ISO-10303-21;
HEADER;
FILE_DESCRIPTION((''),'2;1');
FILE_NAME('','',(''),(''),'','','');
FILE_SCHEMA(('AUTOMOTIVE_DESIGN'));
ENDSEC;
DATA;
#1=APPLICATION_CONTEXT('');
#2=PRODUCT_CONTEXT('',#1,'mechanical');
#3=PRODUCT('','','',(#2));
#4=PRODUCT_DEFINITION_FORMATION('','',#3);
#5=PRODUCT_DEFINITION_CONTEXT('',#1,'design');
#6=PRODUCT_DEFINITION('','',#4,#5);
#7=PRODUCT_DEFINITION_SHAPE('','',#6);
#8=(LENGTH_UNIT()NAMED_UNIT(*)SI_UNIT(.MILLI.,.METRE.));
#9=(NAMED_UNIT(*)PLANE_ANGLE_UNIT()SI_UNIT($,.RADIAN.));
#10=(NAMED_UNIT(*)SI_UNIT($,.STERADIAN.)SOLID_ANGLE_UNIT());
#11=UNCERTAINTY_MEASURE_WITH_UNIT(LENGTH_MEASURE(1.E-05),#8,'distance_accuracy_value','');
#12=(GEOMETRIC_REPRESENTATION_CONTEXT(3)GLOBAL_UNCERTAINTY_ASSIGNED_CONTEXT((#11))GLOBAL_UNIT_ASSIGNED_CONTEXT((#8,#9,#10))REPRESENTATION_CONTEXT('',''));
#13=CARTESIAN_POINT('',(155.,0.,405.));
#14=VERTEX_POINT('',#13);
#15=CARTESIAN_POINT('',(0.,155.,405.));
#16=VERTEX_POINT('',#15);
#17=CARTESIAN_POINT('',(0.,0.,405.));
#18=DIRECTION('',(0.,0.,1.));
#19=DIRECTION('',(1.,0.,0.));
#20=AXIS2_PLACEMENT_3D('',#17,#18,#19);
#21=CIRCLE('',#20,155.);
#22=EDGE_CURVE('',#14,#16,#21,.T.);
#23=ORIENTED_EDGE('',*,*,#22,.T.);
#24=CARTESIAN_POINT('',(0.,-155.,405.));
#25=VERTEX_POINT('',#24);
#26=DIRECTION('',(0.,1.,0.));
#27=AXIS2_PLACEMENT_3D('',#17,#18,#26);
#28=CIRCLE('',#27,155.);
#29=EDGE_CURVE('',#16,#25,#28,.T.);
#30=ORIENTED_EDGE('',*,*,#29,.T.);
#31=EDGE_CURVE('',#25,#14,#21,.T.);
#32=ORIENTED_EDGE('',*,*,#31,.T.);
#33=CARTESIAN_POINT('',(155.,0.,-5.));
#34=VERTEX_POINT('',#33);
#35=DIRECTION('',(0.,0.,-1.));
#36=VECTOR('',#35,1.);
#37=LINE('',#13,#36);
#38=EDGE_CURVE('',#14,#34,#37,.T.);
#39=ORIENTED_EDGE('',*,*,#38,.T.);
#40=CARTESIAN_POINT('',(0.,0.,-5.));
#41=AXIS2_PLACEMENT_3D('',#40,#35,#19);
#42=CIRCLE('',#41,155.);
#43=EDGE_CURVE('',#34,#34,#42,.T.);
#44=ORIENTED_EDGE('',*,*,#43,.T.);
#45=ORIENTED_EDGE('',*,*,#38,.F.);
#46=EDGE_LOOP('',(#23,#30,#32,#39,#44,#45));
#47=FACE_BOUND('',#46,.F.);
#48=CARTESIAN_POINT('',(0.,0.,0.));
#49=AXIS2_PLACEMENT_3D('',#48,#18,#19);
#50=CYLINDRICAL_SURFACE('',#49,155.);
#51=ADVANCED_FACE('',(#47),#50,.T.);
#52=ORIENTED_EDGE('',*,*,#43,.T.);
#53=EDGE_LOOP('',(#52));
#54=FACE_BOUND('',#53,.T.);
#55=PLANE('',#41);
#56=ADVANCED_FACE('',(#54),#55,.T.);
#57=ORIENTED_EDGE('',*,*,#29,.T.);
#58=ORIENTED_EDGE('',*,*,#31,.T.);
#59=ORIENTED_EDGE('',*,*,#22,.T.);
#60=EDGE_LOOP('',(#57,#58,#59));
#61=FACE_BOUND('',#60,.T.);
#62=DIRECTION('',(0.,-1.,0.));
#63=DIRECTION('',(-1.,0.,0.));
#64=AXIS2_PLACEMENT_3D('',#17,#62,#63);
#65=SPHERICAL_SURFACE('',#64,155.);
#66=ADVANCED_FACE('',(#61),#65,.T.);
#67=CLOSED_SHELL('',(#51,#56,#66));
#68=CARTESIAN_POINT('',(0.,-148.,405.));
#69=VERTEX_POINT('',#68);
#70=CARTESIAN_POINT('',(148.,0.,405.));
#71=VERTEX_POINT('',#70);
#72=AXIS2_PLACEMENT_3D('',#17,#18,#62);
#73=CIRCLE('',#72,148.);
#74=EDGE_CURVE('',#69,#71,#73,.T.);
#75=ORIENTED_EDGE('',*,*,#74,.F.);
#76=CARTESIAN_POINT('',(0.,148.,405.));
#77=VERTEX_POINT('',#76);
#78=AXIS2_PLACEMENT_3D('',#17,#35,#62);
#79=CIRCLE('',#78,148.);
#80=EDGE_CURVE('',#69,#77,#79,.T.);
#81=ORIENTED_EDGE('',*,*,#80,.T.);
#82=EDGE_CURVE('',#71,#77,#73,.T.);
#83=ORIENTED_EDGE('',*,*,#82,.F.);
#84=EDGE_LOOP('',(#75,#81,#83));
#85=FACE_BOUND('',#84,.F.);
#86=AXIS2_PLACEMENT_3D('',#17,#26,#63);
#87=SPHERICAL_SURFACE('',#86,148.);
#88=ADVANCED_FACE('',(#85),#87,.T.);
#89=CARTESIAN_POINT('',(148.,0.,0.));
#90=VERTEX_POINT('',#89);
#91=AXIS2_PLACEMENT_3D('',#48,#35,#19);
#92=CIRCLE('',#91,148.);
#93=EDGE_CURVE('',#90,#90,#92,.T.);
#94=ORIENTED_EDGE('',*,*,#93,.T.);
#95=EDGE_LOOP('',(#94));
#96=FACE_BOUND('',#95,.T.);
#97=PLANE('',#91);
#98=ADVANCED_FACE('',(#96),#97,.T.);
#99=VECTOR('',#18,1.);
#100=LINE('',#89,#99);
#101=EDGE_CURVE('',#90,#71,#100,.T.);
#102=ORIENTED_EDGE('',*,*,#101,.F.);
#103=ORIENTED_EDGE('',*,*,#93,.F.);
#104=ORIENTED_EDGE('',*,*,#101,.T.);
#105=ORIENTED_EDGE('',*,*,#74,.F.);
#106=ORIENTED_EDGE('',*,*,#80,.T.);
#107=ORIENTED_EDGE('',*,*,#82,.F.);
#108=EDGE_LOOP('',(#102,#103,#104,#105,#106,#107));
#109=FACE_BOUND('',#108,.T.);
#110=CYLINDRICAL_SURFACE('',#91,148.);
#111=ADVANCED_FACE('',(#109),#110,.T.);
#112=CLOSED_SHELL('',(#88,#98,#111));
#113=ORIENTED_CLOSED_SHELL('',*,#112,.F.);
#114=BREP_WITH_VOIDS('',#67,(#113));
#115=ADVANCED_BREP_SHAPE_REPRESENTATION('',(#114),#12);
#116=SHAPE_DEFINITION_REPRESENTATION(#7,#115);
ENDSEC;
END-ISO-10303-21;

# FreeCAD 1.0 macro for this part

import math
import FreeCAD as App
import Part
import Sketcher

doc = App.newDocument("Part")
body = doc.addObject("PartDesign::Body", "Body")

sketch1 = doc.addObject("Sketcher::SketchObject", "Sketch")
body.addObject(sketch1)
sketch1.AttachmentSupport = (doc.XY_Plane, [""])
sketch1.MapMode = "FlatFace"
sketch1.addGeometry(Part.Circle(App.Vector(0, 0, 0), App.Vector(0, 0, 1), 155), False)
sketch1.addConstraint(Sketcher.Constraint("Coincident", 0, 3, -1, 1))
sketch1.addConstraint(Sketcher.Constraint("Diameter", 0, 310.0))
pad1 = doc.addObject("PartDesign::Pad", "Pad")
body.addObject(pad1)
pad1.Profile = sketch1
pad1.Length = 405

sketch2 = doc.addObject("Sketcher::SketchObject", "Sketch001")
body.addObject(sketch2)
sketch2.AttachmentSupport = (doc.XY_Plane, [""])
sketch2.MapMode = "FlatFace"
sketch2.AttachmentOffset = App.Placement(App.Vector(0, 0, 405), App.Rotation())
sketch2.addGeometry(Part.LineSegment(App.Vector(0, 148, 0), App.Vector(0, 155, 0)), False)
sketch2.addGeometry(Part.ArcOfCircle(Part.Circle(App.Vector(0, 0, 0), App.Vector(0, 0, 1), 155), math.radians(90), math.radians(270)), False)
sketch2.addGeometry(Part.LineSegment(App.Vector(0, -155, 0), App.Vector(0, -148, 0)), False)
sketch2.addGeometry(Part.ArcOfCircle(Part.Circle(App.Vector(0, 0, 0), App.Vector(0, 0, 1), 148), math.radians(90), math.radians(270)), False)
sketch2.addConstraint(Sketcher.Constraint("Coincident", 0, 2, 1, 1))
sketch2.addConstraint(Sketcher.Constraint("Coincident", 1, 2, 2, 1))
sketch2.addConstraint(Sketcher.Constraint("Coincident", 2, 2, 3, 2))
sketch2.addConstraint(Sketcher.Constraint("Coincident", 3, 1, 0, 1))
sketch2.addConstraint(Sketcher.Constraint("Vertical", 0))
sketch2.addConstraint(Sketcher.Constraint("Vertical", 2))
sketch2.addConstraint(Sketcher.Constraint("Coincident", 1, 3, -1, 1))
sketch2.addConstraint(Sketcher.Constraint("Coincident", 3, 3, -1, 1))
sketch2.addConstraint(Sketcher.Constraint("PointOnObject", 0, 2, -2))
sketch2.addConstraint(Sketcher.Constraint("PointOnObject", 1, 2, -2))
sketch2.addConstraint(Sketcher.Constraint("Radius", 1, 155.0))
sketch2.addConstraint(Sketcher.Constraint("Radius", 3, 148.0))
revolution = doc.addObject("PartDesign::Revolution", "Revolution")
body.addObject(revolution)
revolution.Profile = sketch2
revolution.ReferenceAxis = (sketch2, ["V_Axis"])
revolution.Angle = 360

sketch3 = doc.addObject("Sketcher::SketchObject", "Sketch002")
body.addObject(sketch3)
sketch3.AttachmentSupport = (doc.XY_Plane, [""])
sketch3.MapMode = "FlatFace"
sketch3.addGeometry(Part.Circle(App.Vector(0, 0, 0), App.Vector(0, 0, 1), 148), False)
sketch3.addConstraint(Sketcher.Constraint("Coincident", 0, 3, -1, 1))
sketch3.addConstraint(Sketcher.Constraint("Diameter", 0, 296.0))
pocket1 = doc.addObject("PartDesign::Pocket", "Pocket")
body.addObject(pocket1)
pocket1.Profile = sketch3
pocket1.Length = 405
pocket1.Reversed = True

sketch4 = doc.addObject("Sketcher::SketchObject", "Sketch003")
body.addObject(sketch4)
sketch4.AttachmentSupport = (doc.XY_Plane, [""])
sketch4.MapMode = "FlatFace"
sketch4.addGeometry(Part.Circle(App.Vector(0, 0, 0), App.Vector(0, 0, 1), 155), False)
sketch4.addConstraint(Sketcher.Constraint("Coincident", 0, 3, -1, 1))
sketch4.addConstraint(Sketcher.Constraint("Diameter", 0, 310.0))
pad2 = doc.addObject("PartDesign::Pad", "Pad001")
body.addObject(pad2)
pad2.Profile = sketch4
pad2.Length = 5
pad2.Reversed = True

doc.recompute()
